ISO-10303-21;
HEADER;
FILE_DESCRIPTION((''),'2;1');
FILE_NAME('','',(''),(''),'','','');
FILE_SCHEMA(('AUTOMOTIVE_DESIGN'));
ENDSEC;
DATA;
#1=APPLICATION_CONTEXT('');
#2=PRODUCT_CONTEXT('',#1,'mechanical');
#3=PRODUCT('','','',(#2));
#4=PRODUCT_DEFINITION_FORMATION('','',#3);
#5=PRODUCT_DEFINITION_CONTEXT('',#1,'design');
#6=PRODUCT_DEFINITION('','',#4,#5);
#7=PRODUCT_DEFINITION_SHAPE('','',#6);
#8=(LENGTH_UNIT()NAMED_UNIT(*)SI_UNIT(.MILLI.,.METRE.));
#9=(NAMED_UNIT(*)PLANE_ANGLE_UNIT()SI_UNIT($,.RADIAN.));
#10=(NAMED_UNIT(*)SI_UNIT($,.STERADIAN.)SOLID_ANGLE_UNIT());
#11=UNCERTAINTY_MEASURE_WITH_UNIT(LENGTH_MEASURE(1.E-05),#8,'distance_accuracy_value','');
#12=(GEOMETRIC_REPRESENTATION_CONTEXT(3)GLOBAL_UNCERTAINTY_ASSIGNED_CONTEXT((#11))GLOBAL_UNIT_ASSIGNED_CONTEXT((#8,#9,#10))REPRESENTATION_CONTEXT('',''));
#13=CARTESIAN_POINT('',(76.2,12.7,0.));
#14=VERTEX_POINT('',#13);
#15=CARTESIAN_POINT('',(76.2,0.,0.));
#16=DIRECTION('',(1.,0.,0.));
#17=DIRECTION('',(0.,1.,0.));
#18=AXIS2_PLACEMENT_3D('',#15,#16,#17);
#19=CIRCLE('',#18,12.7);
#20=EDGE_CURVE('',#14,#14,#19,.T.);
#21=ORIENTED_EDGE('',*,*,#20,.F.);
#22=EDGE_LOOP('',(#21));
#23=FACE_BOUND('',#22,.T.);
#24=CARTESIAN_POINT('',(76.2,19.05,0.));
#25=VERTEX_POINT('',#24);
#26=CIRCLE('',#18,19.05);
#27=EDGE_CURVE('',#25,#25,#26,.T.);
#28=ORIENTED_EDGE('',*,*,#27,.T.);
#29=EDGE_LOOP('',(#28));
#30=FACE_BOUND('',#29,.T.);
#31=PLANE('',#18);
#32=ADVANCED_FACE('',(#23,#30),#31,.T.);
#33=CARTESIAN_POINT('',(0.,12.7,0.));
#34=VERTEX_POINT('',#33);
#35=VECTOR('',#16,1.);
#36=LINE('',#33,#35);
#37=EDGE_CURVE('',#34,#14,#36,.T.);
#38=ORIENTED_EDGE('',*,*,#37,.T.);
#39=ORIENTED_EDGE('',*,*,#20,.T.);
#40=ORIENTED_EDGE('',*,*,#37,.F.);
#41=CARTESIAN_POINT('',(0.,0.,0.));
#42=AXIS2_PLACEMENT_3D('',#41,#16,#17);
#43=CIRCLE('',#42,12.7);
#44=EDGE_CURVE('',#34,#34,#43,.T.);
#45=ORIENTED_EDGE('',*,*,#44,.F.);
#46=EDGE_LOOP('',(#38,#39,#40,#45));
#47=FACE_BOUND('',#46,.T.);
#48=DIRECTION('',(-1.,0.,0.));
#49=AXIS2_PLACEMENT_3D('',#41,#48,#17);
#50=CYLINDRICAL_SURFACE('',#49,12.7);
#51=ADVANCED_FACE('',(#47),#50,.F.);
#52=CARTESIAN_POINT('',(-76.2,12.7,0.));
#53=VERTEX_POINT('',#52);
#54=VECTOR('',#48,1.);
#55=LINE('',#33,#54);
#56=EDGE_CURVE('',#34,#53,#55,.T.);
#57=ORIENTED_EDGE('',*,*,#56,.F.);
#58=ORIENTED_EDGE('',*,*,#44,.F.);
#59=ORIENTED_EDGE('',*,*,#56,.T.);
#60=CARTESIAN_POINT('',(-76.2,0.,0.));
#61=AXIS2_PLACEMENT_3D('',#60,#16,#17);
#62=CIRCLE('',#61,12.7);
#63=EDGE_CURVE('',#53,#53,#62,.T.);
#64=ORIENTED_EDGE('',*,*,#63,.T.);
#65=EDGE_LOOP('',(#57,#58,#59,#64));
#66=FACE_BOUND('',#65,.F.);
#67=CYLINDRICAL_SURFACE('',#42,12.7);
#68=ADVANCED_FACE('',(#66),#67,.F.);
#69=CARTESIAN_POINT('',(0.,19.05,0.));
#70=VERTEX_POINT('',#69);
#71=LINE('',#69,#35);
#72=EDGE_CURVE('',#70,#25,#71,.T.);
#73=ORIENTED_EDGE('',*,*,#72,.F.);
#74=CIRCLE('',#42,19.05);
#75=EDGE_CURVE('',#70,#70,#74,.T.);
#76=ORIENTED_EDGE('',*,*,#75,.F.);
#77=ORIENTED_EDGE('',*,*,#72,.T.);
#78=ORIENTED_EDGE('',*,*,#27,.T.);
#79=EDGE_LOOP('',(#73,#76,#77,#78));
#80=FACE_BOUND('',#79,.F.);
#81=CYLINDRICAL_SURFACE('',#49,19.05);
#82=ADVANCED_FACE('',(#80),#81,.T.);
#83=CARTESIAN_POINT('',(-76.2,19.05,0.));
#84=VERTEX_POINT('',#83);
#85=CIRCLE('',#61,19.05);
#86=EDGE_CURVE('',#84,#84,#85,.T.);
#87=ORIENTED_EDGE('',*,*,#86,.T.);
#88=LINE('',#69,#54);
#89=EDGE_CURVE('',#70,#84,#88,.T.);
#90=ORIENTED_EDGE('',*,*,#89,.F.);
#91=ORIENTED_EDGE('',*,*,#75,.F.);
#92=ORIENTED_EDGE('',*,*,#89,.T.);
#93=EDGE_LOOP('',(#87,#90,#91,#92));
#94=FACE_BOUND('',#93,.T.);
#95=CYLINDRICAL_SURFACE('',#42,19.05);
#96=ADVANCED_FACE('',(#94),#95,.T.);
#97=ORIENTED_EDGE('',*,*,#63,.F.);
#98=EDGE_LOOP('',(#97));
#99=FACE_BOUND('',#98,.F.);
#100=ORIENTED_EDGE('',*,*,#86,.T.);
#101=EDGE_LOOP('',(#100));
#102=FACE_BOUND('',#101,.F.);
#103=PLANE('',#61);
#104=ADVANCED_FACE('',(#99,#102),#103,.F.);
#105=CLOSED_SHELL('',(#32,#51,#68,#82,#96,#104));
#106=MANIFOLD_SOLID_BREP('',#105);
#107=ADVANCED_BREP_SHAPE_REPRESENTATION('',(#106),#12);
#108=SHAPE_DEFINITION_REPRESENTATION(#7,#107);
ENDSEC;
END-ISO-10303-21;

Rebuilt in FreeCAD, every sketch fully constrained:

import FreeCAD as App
import Part
import Sketcher

V = App.Vector
Q = App.Units.Quantity

doc = App.newDocument("Part")
body = doc.addObject("PartDesign::Body", "Body")

# Sketch on YZ plane
sketch1 = body.newObject("Sketcher::SketchObject", "Sketch")
sketch1.AttachmentSupport = (doc.getObject("YZ_Plane"), [""])
sketch1.MapMode = "FlatFace"
sketch1.addGeometry(Part.Circle(V(0, 0, 0), V(0, 0, 1), 19), False)
sketch1.addGeometry(Part.Circle(V(0, 0, 0), V(0, 0, 1), 13), False)
sketch1.addConstraint(Sketcher.Constraint("Coincident", 0, 3, -1, 1))
sketch1.addConstraint(Sketcher.Constraint("Coincident", 1, 3, -1, 1))
sketch1.addConstraint(Sketcher.Constraint("Diameter", 1, Q("1 in")))
sketch1.addConstraint(Sketcher.Constraint("Diameter", 0, Q("1.5 in")))
pad1 = body.newObject("PartDesign::Pad", "Pad")
pad1.Profile = sketch1
pad1.Length = Q("6 in")
pad1.Midplane = True

doc.recompute()
